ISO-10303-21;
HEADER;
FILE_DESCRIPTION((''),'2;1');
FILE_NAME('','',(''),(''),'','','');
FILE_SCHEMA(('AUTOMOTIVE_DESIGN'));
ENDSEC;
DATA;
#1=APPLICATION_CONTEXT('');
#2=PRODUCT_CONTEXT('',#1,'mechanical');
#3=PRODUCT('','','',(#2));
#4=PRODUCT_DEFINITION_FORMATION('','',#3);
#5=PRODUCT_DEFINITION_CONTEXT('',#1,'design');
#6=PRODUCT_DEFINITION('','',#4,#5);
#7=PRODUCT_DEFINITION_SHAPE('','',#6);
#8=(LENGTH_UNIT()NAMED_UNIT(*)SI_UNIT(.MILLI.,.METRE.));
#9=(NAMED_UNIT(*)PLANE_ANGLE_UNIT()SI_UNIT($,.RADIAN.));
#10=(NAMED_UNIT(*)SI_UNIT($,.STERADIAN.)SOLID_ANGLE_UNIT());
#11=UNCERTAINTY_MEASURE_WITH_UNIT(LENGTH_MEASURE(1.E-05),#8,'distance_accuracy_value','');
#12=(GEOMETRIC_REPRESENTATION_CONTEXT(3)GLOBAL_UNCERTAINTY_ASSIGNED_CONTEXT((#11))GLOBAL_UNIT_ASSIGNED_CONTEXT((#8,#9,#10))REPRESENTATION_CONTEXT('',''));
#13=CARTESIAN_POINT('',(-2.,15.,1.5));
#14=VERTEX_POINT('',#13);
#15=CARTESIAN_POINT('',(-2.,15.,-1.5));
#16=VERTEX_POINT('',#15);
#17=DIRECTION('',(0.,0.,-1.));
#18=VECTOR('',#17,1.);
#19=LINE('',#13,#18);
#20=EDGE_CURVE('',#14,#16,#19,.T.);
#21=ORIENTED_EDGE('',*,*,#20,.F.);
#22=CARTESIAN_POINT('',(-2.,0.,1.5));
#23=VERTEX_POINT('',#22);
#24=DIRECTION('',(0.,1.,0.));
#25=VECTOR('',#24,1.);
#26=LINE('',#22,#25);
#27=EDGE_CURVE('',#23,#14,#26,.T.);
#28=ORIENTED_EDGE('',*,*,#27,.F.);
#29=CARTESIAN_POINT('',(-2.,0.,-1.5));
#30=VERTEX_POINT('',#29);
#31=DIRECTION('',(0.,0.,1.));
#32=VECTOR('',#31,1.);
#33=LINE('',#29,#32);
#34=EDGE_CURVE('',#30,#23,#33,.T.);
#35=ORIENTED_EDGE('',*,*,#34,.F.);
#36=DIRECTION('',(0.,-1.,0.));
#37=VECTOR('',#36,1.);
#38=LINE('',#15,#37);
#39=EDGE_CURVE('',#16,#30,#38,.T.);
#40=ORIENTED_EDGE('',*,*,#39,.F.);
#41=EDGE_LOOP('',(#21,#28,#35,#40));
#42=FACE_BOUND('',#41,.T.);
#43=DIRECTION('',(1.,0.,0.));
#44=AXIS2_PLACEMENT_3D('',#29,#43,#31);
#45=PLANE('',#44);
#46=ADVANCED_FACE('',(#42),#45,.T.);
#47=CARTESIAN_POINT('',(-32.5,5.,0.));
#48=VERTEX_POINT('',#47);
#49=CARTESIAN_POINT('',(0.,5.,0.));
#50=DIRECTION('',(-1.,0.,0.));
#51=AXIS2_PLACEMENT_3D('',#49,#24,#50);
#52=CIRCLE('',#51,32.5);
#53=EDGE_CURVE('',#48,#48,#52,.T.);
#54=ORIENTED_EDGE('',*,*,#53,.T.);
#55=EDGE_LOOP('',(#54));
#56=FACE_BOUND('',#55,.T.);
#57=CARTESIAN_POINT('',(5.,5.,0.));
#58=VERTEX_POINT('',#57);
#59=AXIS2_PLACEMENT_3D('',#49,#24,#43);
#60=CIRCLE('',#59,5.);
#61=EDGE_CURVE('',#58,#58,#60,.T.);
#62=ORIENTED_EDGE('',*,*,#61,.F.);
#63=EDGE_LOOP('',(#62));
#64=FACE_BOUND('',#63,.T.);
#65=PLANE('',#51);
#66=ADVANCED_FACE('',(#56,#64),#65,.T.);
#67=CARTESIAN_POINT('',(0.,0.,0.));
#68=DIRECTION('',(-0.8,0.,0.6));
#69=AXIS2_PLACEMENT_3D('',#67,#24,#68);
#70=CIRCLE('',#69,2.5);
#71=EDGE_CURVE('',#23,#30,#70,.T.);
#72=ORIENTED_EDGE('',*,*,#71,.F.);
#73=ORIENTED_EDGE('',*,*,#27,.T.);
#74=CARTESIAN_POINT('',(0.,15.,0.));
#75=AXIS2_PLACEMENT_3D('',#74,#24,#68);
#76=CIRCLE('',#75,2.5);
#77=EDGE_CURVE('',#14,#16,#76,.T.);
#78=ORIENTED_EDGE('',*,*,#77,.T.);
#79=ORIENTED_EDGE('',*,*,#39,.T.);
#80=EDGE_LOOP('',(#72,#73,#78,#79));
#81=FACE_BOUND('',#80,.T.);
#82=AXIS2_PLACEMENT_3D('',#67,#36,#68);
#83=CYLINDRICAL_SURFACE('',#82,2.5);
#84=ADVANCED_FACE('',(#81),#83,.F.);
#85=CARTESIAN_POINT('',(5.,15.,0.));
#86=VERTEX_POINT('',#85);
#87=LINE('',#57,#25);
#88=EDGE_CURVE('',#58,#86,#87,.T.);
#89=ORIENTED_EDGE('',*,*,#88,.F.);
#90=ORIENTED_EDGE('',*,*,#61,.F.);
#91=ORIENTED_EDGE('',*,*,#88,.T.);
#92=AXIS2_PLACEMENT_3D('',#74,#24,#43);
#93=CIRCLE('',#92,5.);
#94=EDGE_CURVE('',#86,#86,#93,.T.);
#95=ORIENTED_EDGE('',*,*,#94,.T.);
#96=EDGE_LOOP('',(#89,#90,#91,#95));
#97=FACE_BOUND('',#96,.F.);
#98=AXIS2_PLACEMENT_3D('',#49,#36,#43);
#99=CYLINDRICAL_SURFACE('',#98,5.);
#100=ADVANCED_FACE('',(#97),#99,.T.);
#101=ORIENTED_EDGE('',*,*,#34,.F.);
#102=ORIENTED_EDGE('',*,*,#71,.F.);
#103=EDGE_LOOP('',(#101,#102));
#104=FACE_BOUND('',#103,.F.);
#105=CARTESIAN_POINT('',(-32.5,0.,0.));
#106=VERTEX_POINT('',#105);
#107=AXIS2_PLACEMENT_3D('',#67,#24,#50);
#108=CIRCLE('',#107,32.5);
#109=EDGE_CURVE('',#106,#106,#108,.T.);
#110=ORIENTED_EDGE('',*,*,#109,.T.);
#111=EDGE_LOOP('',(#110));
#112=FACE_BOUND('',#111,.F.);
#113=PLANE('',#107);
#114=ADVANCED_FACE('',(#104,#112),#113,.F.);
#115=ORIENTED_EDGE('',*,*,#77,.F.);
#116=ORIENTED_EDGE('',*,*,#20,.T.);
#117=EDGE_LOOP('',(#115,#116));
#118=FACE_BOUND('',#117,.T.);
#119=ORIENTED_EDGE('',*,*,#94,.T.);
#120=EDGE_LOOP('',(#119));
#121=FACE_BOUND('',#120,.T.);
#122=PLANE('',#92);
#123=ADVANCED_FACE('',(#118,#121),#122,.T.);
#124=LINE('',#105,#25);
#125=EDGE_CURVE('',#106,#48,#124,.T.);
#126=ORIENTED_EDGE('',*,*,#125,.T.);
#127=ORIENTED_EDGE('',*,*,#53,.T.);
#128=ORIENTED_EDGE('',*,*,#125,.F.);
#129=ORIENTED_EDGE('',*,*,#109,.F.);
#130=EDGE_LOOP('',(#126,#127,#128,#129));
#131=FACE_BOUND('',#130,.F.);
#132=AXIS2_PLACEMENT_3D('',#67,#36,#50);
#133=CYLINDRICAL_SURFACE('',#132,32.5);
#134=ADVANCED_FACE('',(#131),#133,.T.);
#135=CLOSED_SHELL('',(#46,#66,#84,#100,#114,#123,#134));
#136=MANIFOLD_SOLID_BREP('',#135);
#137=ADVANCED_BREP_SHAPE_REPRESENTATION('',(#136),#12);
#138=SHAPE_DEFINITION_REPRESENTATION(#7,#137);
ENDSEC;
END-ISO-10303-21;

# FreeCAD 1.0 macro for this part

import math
import FreeCAD as App
import Part
import Sketcher

V = App.Vector
Q = App.Units.Quantity

doc = App.newDocument("Part")
body = doc.addObject("PartDesign::Body", "Body")

# Sketch on XZ plane
sketch1 = doc.addObject("Sketcher::SketchObject", "Sketch")
body.addObject(sketch1)
sketch1.AttachmentSupport = (doc.XZ_Plane, [""])
sketch1.MapMode = "FlatFace"
sketch1.addGeometry(Part.Circle(V(0, 0, 0), V(0, 0, 1), 32.5), False)
sketch1.addGeometry(Part.ArcOfCircle(Part.Circle(V(0, 0, 0), V(0, 0, 1), 2.5), math.radians(-143), math.radians(143)), False)
sketch1.addGeometry(Part.LineSegment(V(-2, 1.5, 0), V(-2, -1.5, 0)), False)
sketch1.addConstraint(Sketcher.Constraint("Coincident", 1, 1, 2, 2))
sketch1.addConstraint(Sketcher.Constraint("Coincident", 2, 1, 1, 2))
sketch1.addConstraint(Sketcher.Constraint("Vertical", 2))
sketch1.addConstraint(Sketcher.Constraint("Coincident", 0, 3, -1, 1))
sketch1.addConstraint(Sketcher.Constraint("Coincident", 1, 3, -1, 1))
sketch1.addConstraint(Sketcher.Constraint("Diameter", 0, Q("65 mm")))
sketch1.addConstraint(Sketcher.Constraint("Radius", 1, Q("2.5 mm")))
sketch1.addConstraint(Sketcher.Constraint("DistanceY", 2, 2, 2, 1, Q("3 mm")))
pad1 = doc.addObject("PartDesign::Pad", "Pad")
body.addObject(pad1)
pad1.Profile = sketch1
pad1.Length = 5
pad1.Reversed = True

# Sketch on XZ plane
sketch2 = doc.addObject("Sketcher::SketchObject", "Sketch001")
body.addObject(sketch2)
sketch2.AttachmentSupport = (doc.XZ_Plane, [""])
sketch2.MapMode = "FlatFace"
sketch2.AttachmentOffset = App.Placement(V(0, 0, -5), App.Rotation())
sketch2.addGeometry(Part.Circle(V(0, 0, 0), V(0, 0, 1), 5), False)
sketch2.addGeometry(Part.ArcOfCircle(Part.Circle(V(0, 0, 0), V(0, 0, 1), 2.5), math.radians(-143), math.radians(143)), False)
sketch2.addGeometry(Part.LineSegment(V(-2, 1.5, 0), V(-2, -1.5, 0)), False)
sketch2.addConstraint(Sketcher.Constraint("Coincident", 1, 1, 2, 2))
sketch2.addConstraint(Sketcher.Constraint("Coincident", 2, 1, 1, 2))
sketch2.addConstraint(Sketcher.Constraint("Vertical", 2))
sketch2.addConstraint(Sketcher.Constraint("Coincident", 0, 3, -1, 1))
sketch2.addConstraint(Sketcher.Constraint("Coincident", 1, 3, -1, 1))
sketch2.addConstraint(Sketcher.Constraint("Diameter", 0, Q("10 mm")))
sketch2.addConstraint(Sketcher.Constraint("Radius", 1, Q("2.5 mm")))
sketch2.addConstraint(Sketcher.Constraint("DistanceY", 2, 2, 2, 1, Q("3 mm")))
pad2 = doc.addObject("PartDesign::Pad", "Pad001")
body.addObject(pad2)
pad2.Profile = sketch2
pad2.Length = 10
pad2.Reversed = True

doc.recompute()
